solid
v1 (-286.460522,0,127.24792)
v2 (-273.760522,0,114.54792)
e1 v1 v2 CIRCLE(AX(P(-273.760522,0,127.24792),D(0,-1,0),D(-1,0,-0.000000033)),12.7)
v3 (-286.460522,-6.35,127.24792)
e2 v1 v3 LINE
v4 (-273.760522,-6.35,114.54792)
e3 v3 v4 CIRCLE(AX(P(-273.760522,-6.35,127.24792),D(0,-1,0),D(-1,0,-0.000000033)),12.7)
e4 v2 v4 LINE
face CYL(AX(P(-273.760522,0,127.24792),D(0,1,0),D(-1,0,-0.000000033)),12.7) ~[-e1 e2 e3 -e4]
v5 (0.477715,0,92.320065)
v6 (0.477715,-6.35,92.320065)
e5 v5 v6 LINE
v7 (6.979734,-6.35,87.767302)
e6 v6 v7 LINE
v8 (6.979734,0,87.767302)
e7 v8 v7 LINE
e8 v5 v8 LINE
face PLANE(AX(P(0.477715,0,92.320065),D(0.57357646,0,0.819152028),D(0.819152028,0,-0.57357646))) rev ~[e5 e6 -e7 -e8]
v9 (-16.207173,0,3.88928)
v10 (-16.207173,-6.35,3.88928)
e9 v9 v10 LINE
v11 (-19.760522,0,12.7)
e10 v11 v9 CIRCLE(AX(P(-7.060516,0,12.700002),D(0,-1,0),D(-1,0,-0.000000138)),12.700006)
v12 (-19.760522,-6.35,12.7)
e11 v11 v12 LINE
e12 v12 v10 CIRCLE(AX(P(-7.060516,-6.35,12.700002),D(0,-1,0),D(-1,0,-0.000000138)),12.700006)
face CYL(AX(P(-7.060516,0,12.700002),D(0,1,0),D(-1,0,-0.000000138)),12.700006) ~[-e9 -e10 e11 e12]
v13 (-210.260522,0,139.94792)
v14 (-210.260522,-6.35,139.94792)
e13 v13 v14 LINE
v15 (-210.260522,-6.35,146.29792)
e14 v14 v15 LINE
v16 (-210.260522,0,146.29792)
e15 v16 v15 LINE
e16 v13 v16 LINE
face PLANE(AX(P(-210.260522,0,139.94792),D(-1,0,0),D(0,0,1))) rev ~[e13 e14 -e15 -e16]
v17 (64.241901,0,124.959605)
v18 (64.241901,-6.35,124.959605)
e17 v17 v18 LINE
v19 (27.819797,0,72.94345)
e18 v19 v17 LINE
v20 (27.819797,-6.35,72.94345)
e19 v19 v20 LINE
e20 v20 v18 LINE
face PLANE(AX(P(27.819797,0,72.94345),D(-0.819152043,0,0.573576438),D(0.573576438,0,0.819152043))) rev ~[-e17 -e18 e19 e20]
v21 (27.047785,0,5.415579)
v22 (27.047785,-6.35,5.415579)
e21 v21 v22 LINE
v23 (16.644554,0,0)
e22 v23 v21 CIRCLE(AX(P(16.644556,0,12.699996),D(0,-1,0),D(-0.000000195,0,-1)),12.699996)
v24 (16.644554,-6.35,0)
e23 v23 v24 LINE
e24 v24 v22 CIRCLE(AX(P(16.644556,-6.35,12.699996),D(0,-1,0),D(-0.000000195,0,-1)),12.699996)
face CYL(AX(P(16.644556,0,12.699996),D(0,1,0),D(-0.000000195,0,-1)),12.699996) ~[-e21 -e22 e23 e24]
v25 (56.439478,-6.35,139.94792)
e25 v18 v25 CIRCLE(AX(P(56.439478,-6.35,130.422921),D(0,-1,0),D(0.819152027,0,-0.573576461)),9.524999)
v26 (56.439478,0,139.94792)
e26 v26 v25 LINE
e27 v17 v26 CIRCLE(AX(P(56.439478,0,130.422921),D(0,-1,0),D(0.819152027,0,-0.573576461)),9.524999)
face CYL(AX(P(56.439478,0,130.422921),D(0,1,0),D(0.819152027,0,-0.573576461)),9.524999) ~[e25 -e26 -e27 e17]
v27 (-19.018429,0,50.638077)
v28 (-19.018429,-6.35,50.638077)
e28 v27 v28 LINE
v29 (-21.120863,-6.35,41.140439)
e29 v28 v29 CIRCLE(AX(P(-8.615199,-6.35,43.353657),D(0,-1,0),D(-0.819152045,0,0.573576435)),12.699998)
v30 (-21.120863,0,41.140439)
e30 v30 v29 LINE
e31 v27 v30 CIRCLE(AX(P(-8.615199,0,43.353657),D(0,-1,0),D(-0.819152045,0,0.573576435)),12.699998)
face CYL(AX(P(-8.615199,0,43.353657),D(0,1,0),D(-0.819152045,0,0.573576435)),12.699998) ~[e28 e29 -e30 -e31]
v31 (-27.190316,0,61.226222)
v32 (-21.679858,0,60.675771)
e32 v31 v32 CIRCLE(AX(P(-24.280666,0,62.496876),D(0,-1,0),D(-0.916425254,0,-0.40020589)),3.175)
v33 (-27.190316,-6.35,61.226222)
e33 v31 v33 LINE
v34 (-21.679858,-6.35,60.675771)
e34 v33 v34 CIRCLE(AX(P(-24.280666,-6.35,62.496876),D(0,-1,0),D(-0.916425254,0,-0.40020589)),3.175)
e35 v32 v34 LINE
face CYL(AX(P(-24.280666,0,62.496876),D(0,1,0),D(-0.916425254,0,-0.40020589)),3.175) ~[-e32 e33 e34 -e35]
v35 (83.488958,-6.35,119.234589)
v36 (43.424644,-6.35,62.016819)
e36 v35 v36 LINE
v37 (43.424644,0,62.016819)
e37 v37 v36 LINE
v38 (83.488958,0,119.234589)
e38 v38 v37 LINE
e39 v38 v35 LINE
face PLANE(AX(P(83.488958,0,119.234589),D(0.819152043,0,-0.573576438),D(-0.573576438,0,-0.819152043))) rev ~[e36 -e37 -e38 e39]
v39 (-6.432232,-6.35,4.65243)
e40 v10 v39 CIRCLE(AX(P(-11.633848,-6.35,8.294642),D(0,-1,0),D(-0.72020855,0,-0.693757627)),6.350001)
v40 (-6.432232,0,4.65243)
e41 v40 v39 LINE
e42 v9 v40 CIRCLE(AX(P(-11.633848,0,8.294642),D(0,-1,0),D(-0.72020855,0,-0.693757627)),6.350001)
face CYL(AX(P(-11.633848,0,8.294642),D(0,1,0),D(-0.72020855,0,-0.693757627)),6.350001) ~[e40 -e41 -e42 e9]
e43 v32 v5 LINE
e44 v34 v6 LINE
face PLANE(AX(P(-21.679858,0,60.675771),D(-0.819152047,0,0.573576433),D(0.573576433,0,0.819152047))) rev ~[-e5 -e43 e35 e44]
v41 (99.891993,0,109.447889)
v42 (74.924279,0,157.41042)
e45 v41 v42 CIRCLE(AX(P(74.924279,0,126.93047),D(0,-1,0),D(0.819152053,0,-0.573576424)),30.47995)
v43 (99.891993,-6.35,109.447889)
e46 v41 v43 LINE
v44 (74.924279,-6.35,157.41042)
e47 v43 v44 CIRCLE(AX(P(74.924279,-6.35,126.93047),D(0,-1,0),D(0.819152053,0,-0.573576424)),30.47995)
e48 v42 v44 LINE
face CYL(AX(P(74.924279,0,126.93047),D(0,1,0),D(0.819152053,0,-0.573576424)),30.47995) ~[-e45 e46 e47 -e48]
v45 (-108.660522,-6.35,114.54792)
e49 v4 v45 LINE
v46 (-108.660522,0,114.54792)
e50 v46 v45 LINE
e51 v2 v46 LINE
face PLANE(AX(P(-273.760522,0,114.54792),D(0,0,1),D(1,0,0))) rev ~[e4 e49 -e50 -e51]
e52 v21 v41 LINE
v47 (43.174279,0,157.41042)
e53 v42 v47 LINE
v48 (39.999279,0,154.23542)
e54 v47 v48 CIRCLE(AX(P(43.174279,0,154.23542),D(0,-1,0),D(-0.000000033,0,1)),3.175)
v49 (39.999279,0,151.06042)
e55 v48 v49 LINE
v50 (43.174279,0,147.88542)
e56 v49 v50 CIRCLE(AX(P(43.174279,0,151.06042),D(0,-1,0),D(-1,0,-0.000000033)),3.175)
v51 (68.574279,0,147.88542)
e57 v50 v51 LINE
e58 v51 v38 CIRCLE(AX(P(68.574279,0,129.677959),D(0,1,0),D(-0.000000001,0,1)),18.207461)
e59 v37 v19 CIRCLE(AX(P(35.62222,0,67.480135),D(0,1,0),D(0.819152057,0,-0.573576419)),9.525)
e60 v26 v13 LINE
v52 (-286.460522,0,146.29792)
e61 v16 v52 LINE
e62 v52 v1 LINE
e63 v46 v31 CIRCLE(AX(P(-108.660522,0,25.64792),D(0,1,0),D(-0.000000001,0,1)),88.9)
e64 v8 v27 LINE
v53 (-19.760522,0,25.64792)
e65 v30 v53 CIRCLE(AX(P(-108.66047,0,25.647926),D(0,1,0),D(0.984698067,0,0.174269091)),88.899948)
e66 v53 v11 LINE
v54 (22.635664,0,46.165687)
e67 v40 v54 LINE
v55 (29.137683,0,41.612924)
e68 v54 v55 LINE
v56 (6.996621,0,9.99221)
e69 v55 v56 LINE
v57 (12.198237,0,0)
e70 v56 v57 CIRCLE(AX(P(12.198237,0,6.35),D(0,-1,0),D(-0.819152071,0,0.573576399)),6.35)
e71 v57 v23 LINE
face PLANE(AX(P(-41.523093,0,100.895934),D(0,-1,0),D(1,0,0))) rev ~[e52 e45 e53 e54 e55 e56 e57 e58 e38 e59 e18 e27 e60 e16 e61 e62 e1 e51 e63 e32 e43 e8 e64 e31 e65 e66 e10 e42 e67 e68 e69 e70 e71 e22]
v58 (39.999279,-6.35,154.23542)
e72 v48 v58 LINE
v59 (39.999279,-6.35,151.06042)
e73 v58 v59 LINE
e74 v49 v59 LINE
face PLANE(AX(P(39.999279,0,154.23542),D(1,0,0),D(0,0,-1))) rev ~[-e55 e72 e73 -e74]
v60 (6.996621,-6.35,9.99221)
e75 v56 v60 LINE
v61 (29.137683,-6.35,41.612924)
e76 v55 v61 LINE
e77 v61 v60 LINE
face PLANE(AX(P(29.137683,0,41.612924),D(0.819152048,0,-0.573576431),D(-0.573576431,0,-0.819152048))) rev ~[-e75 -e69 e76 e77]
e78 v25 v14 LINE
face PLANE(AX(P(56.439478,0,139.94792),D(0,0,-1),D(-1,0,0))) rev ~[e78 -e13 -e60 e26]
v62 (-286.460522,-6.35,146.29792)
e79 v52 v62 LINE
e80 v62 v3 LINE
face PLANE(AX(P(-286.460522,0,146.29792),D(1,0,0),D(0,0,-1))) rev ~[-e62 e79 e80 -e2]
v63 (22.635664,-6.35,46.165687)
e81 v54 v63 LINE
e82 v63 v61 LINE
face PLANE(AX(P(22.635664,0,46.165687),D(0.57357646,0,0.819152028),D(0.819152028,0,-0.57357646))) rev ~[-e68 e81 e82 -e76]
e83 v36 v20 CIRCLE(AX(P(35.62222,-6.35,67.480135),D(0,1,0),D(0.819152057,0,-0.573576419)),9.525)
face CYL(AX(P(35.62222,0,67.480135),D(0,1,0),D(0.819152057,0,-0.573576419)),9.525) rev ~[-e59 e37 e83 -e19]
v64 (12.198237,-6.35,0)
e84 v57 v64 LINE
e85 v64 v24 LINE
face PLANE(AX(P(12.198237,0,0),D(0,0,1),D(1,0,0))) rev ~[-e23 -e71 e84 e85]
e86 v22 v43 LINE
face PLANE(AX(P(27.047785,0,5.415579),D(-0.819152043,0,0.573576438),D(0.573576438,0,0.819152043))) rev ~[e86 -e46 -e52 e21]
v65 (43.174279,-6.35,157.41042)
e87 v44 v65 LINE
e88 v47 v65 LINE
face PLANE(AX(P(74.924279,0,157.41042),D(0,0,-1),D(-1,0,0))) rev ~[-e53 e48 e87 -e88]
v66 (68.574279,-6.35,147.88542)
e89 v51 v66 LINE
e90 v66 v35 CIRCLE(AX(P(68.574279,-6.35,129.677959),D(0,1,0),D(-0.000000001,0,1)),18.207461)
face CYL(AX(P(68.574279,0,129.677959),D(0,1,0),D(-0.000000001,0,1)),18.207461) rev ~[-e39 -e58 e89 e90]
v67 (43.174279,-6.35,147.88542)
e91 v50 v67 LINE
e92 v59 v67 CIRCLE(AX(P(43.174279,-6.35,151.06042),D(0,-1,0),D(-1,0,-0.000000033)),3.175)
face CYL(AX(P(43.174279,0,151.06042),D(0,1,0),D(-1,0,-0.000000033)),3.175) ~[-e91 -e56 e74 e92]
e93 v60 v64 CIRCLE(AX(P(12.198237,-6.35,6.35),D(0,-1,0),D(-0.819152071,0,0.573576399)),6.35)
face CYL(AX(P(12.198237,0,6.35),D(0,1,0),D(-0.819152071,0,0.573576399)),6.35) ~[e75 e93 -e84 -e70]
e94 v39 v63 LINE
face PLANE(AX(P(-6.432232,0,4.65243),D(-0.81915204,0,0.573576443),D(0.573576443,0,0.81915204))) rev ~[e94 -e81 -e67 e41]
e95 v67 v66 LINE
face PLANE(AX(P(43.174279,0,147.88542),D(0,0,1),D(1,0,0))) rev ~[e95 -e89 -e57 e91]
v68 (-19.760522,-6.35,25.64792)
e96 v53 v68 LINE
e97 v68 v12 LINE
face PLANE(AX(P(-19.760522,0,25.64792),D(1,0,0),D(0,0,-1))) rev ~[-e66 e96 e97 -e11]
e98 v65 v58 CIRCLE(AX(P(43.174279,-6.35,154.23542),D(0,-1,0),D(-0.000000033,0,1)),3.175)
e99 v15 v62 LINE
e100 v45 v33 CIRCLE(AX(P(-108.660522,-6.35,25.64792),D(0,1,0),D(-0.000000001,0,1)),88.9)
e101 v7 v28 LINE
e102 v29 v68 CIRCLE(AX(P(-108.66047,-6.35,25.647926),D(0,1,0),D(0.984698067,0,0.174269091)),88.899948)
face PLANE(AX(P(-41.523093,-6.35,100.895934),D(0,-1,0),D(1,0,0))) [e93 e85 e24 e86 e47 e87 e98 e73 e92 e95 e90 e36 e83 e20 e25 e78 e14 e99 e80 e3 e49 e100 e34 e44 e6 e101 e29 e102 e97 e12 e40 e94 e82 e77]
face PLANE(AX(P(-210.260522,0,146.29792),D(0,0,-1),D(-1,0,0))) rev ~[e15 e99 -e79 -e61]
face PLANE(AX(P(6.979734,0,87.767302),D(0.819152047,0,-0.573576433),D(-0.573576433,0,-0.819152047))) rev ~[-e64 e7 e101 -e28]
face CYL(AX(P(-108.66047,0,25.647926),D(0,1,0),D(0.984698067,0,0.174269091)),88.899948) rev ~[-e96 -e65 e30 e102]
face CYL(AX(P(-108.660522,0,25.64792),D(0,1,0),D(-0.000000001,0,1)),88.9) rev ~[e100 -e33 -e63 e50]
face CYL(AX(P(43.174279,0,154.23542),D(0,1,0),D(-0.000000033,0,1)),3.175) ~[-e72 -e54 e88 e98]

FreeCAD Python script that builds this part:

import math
import FreeCAD as App
import Part
import Sketcher

V = App.Vector
Q = App.Units.Quantity

doc = App.newDocument("Part")
params = doc.addObject("Spreadsheet::Sheet", "Params")
for row, (alias, value) in enumerate([
    ("sketch1_radius", "0.4999998 in"),
    ("sketch1_radius2", "0.5 in"),
    ("sketch1_radius3", "3.5 in"),
    ("sketch1_radius4", "0.4999999 in"),
    ("sketch1_width", "1 in"),
    ("pad1_length", "0.25 in"),
], start=1):
    params.set(f"A{row}", alias)
    params.set(f"B{row}", "=" + value)
    params.setAlias(f"B{row}", alias)

body = doc.addObject("PartDesign::Body", "Body")

# Sketch on XZ plane
sketch1 = doc.addObject("Sketcher::SketchObject", "Sketch")
body.addObject(sketch1)
sketch1.AttachmentSupport = (doc.XZ_Plane, [""])
sketch1.MapMode = "FlatFace"
sketch1.addGeometry([
    Part.ArcOfCircle(Part.Circle(V(-11.6, 8.3, 0), V(0, 0, 1), 6.4), math.radians(-136), math.radians(-35)),  # 0
    Part.LineSegment(V(-6.4, 4.7, 0), V(22.6, 46.2, 0)),  # 1
    Part.LineSegment(V(22.6, 46.2, 0), V(29.1, 41.6, 0)),  # 2
    Part.LineSegment(V(29.1, 41.6, 0), V(7, 10, 0)),  # 3
    Part.ArcOfCircle(Part.Circle(V(12.2, 6.3, 0), V(0, 0, 1), 6.3), math.radians(145), math.radians(270)),  # 4
    Part.LineSegment(V(12.2, 0, 0), V(16.6, 0, 0)),  # 5
    Part.ArcOfCircle(Part.Circle(V(16.6, 12.7, 0), V(0, 0, 1), 12.7), math.radians(-90), math.radians(-35)),  # 6
    Part.LineSegment(V(27, 5.4, 0), V(99.9, 109.4, 0)),  # 7
    Part.ArcOfCircle(Part.Circle(V(74.9, 126.9, 0), V(0, 0, 1), 30.5), math.radians(-35), math.radians(90)),  # 8
    Part.LineSegment(V(74.9, 157.4, 0), V(43.2, 157.4, 0)),  # 9
    Part.ArcOfCircle(Part.Circle(V(43.2, 154.2, 0), V(0, 0, 1), 3.2), math.radians(90), math.radians(180)),  # 10
    Part.LineSegment(V(40, 154.2, 0), V(40, 151.1, 0)),  # 11
    Part.ArcOfCircle(Part.Circle(V(43.2, 151.1, 0), V(0, 0, 1), 3.2), math.radians(-180), math.radians(-90)),  # 12
    Part.LineSegment(V(43.2, 147.9, 0), V(68.6, 147.9, 0)),  # 13
    Part.ArcOfCircle(Part.Circle(V(68.6, 129.7, 0), V(0, 0, 1), 18.2), math.radians(-35), math.radians(90)),  # 14
    Part.LineSegment(V(83.5, 119.2, 0), V(43.4, 62, 0)),  # 15
    Part.ArcOfCircle(Part.Circle(V(35.6, 67.5, 0), V(0, 0, 1), 9.5), math.radians(145), math.radians(325)),  # 16
    Part.LineSegment(V(27.8, 72.9, 0), V(64.2, 125, 0)),  # 17
    Part.ArcOfCircle(Part.Circle(V(56.4, 130.4, 0), V(0, 0, 1), 9.5), math.radians(-35), math.radians(90)),  # 18
    Part.LineSegment(V(56.4, 139.9, 0), V(-210.3, 139.9, 0)),  # 19
    Part.LineSegment(V(-210.3, 139.9, 0), V(-210.3, 146.3, 0)),  # 20
    Part.LineSegment(V(-210.3, 146.3, 0), V(-286.5, 146.3, 0)),  # 21
    Part.LineSegment(V(-286.5, 146.3, 0), V(-286.5, 127.2, 0)),  # 22
    Part.ArcOfCircle(Part.Circle(V(-273.8, 127.2, 0), V(0, 0, 1), 12.7), math.radians(-180), math.radians(-90)),  # 23
    Part.LineSegment(V(-273.8, 114.5, 0), V(-108.7, 114.5, 0)),  # 24
    Part.ArcOfCircle(Part.Circle(V(-108.7, 25.6, 0), V(0, 0, 1), 88.9), math.radians(24), math.radians(90)),  # 25
    Part.ArcOfCircle(Part.Circle(V(-24.3, 62.5, 0), V(0, 0, 1), 3.2), math.radians(-156), math.radians(-35)),  # 26
    Part.LineSegment(V(-21.7, 60.7, 0), V(0.5, 92.3, 0)),  # 27
    Part.LineSegment(V(0.5, 92.3, 0), V(7, 87.8, 0)),  # 28
    Part.LineSegment(V(7, 87.8, 0), V(-19, 50.6, 0)),  # 29
    Part.ArcOfCircle(Part.Circle(V(-8.6, 43.4, 0), V(0, 0, 1), 12.7), math.radians(145), math.radians(190)),  # 30
    Part.ArcOfCircle(Part.Circle(V(-108.7, 25.6, 0), V(0, 0, 1), 88.9), math.radians(0), math.radians(10.04)),  # 31
    Part.LineSegment(V(-19.8, 25.6, 0), V(-19.8, 12.7, 0)),  # 32
    Part.ArcOfCircle(Part.Circle(V(-7.1, 12.7, 0), V(0, 0, 1), 12.7), math.radians(-180), math.radians(-136)),  # 33
], False)
sketch1.addConstraint([
    Sketcher.Constraint("Tangent", 0, 2, 1, 1),
    Sketcher.Constraint("Coincident", 1, 2, 2, 1),
    Sketcher.Constraint("Coincident", 2, 2, 3, 1),
    Sketcher.Constraint("Tangent", 3, 2, 4, 1),
    Sketcher.Constraint("Tangent", 4, 2, 5, 1),
    Sketcher.Constraint("Tangent", 5, 2, 6, 1),
    Sketcher.Constraint("Tangent", 6, 2, 7, 1),
    Sketcher.Constraint("Tangent", 7, 2, 8, 1),
    Sketcher.Constraint("Tangent", 8, 2, 9, 1),
    Sketcher.Constraint("Tangent", 9, 2, 10, 1),
    Sketcher.Constraint("Tangent", 10, 2, 11, 1),
    Sketcher.Constraint("Tangent", 11, 2, 12, 1),
    Sketcher.Constraint("Tangent", 12, 2, 13, 1),
    Sketcher.Constraint("Tangent", 13, 2, 14, 2),
    Sketcher.Constraint("Tangent", 14, 1, 15, 1),
    Sketcher.Constraint("Tangent", 15, 2, 16, 2),
    Sketcher.Constraint("Tangent", 16, 1, 17, 1),
    Sketcher.Constraint("Tangent", 17, 2, 18, 1),
    Sketcher.Constraint("Tangent", 18, 2, 19, 1),
    Sketcher.Constraint("Coincident", 19, 2, 20, 1),
    Sketcher.Constraint("Coincident", 20, 2, 21, 1),
    Sketcher.Constraint("Coincident", 21, 2, 22, 1),
    Sketcher.Constraint("Tangent", 22, 2, 23, 1),
    Sketcher.Constraint("Tangent", 23, 2, 24, 1),
    Sketcher.Constraint("Tangent", 24, 2, 25, 2),
    Sketcher.Constraint("Tangent", 25, 1, 26, 1),
    Sketcher.Constraint("Tangent", 26, 2, 27, 1),
    Sketcher.Constraint("Coincident", 27, 2, 28, 1),
    Sketcher.Constraint("Coincident", 28, 2, 29, 1),
    Sketcher.Constraint("Tangent", 29, 2, 30, 1),
    Sketcher.Constraint("Tangent", 30, 2, 31, 2),
    Sketcher.Constraint("Tangent", 31, 1, 32, 1),
    Sketcher.Constraint("Tangent", 32, 2, 33, 1),
    Sketcher.Constraint("Tangent", 33, 2, 0, 1),
    Sketcher.Constraint("Horizontal", 5),
    Sketcher.Constraint("Horizontal", 9),
    Sketcher.Constraint("Vertical", 11),
    Sketcher.Constraint("Horizontal", 13),
    Sketcher.Constraint("Horizontal", 19),
    Sketcher.Constraint("Vertical", 20),
    Sketcher.Constraint("Horizontal", 21),
    Sketcher.Constraint("Vertical", 22),
    Sketcher.Constraint("Horizontal", 24),
    Sketcher.Constraint("Vertical", 32),
    Sketcher.Constraint("Equal", 0, 4),
    Sketcher.Constraint("Equal", 10, 12),
    Sketcher.Constraint("Equal", 16, 18),
    Sketcher.Constraint("Equal", 12, 26),
    Sketcher.Constraint("PointOnObject", 4, 2, -1),
    Sketcher.Constraint("Perpendicular", 1, 2),
    Sketcher.Constraint("Perpendicular", 2, 3),
    Sketcher.Constraint("Parallel", 3, 7),
    Sketcher.Constraint("Parallel", 7, 15),
    Sketcher.Constraint("Parallel", 15, 17),
    Sketcher.Constraint("Parallel", 17, 27),
    Sketcher.Constraint("Perpendicular", 27, 28),
    Sketcher.Constraint("Perpendicular", 28, 29),
    Sketcher.Constraint("Horizontal", 25, 3, 31, 1),
    Sketcher.Constraint("Equal", 2, 28),
    Sketcher.Constraint("Radius", 6, Q("0.4999998 in")),
    Sketcher.Constraint("Radius", 23, Q("0.5 in")),
    Sketcher.Constraint("Radius", 25, Q("3.5 in")),
    Sketcher.Constraint("Radius", 30, Q("0.4999999 in")),
    Sketcher.Constraint("DistanceX", 13, 1, 13, 2, Q("1 in")),
    Sketcher.Constraint("DistanceX", 21, 2, 21, 1, Q("3 in")),
    Sketcher.Constraint("Radius", 0, Q("0.25 in")),
    Sketcher.Constraint("Distance", 7, Q("5 in")),
    Sketcher.Constraint("DistanceX", 19, 2, 19, 1, Q("10.5 in")),
    Sketcher.Constraint("DistanceX", 24, 1, 24, 2, Q("6.5 in")),
    Sketcher.Constraint("Angle", 1, Q("55 deg")),
    Sketcher.Constraint("Radius", 10, Q("0.125 in")),
    Sketcher.Constraint("Radius", 16, Q("0.375 in")),
    Sketcher.Constraint("DistanceY", 23, 2, 19, 2, Q("1 in")),
    Sketcher.Constraint("Distance", 17, Q("2.5 in")),
    Sketcher.Constraint("DistanceX", 9, 2, 9, 1, Q("1.25 in")),
    Sketcher.Constraint("DistanceY", 20, 1, 20, 2, Q("0.25 in")),
    Sketcher.Constraint("DistanceY", -1, 1, 33, 3, Q("0.5000001 in")),
    Sketcher.Constraint("Distance", 15, Q("2.75 in")),
    Sketcher.Constraint("DistanceY", 11, 2, 11, 1, Q("0.125 in")),
    Sketcher.Constraint("Distance", 2, Q("0.3125 in")),
    Sketcher.Constraint("Radius", 8, 30.47995),
    Sketcher.Constraint("Radius", 14, 18.207461),
    Sketcher.Constraint("Radius", 31, 88.899948),
    Sketcher.Constraint("Radius", 33, 12.700006),
    Sketcher.Constraint("DistanceY", 0, 3, 10, 3, Q("5.7456999 in")),
    Sketcher.Constraint("DistanceX", 30, 3, -1, 1, 8.615199),
    Sketcher.Constraint("DistanceX", -1, 1, 17, 2, 64.241901),
    Sketcher.Constraint("DistanceY", -1, 1, 28, 2, 87.767302),
    Sketcher.Constraint("DistanceX", 25, 1, 33, 3, 20.1298),
    Sketcher.Constraint("Distance", 1, 50.67833),
])
sketch1.setExpression("Constraints[59]", "Params.sketch1_radius")
sketch1.setExpression("Constraints[60]", "Params.sketch1_radius2")
sketch1.setExpression("Constraints[61]", "Params.sketch1_radius3")
sketch1.setExpression("Constraints[62]", "Params.sketch1_radius4")
sketch1.setExpression("Constraints[63]", "Params.sketch1_width")
pad1 = doc.addObject("PartDesign::Pad", "Pad")
body.addObject(pad1)
pad1.Profile = sketch1
pad1.setExpression("Length", "Params.pad1_length")

doc.recompute()
